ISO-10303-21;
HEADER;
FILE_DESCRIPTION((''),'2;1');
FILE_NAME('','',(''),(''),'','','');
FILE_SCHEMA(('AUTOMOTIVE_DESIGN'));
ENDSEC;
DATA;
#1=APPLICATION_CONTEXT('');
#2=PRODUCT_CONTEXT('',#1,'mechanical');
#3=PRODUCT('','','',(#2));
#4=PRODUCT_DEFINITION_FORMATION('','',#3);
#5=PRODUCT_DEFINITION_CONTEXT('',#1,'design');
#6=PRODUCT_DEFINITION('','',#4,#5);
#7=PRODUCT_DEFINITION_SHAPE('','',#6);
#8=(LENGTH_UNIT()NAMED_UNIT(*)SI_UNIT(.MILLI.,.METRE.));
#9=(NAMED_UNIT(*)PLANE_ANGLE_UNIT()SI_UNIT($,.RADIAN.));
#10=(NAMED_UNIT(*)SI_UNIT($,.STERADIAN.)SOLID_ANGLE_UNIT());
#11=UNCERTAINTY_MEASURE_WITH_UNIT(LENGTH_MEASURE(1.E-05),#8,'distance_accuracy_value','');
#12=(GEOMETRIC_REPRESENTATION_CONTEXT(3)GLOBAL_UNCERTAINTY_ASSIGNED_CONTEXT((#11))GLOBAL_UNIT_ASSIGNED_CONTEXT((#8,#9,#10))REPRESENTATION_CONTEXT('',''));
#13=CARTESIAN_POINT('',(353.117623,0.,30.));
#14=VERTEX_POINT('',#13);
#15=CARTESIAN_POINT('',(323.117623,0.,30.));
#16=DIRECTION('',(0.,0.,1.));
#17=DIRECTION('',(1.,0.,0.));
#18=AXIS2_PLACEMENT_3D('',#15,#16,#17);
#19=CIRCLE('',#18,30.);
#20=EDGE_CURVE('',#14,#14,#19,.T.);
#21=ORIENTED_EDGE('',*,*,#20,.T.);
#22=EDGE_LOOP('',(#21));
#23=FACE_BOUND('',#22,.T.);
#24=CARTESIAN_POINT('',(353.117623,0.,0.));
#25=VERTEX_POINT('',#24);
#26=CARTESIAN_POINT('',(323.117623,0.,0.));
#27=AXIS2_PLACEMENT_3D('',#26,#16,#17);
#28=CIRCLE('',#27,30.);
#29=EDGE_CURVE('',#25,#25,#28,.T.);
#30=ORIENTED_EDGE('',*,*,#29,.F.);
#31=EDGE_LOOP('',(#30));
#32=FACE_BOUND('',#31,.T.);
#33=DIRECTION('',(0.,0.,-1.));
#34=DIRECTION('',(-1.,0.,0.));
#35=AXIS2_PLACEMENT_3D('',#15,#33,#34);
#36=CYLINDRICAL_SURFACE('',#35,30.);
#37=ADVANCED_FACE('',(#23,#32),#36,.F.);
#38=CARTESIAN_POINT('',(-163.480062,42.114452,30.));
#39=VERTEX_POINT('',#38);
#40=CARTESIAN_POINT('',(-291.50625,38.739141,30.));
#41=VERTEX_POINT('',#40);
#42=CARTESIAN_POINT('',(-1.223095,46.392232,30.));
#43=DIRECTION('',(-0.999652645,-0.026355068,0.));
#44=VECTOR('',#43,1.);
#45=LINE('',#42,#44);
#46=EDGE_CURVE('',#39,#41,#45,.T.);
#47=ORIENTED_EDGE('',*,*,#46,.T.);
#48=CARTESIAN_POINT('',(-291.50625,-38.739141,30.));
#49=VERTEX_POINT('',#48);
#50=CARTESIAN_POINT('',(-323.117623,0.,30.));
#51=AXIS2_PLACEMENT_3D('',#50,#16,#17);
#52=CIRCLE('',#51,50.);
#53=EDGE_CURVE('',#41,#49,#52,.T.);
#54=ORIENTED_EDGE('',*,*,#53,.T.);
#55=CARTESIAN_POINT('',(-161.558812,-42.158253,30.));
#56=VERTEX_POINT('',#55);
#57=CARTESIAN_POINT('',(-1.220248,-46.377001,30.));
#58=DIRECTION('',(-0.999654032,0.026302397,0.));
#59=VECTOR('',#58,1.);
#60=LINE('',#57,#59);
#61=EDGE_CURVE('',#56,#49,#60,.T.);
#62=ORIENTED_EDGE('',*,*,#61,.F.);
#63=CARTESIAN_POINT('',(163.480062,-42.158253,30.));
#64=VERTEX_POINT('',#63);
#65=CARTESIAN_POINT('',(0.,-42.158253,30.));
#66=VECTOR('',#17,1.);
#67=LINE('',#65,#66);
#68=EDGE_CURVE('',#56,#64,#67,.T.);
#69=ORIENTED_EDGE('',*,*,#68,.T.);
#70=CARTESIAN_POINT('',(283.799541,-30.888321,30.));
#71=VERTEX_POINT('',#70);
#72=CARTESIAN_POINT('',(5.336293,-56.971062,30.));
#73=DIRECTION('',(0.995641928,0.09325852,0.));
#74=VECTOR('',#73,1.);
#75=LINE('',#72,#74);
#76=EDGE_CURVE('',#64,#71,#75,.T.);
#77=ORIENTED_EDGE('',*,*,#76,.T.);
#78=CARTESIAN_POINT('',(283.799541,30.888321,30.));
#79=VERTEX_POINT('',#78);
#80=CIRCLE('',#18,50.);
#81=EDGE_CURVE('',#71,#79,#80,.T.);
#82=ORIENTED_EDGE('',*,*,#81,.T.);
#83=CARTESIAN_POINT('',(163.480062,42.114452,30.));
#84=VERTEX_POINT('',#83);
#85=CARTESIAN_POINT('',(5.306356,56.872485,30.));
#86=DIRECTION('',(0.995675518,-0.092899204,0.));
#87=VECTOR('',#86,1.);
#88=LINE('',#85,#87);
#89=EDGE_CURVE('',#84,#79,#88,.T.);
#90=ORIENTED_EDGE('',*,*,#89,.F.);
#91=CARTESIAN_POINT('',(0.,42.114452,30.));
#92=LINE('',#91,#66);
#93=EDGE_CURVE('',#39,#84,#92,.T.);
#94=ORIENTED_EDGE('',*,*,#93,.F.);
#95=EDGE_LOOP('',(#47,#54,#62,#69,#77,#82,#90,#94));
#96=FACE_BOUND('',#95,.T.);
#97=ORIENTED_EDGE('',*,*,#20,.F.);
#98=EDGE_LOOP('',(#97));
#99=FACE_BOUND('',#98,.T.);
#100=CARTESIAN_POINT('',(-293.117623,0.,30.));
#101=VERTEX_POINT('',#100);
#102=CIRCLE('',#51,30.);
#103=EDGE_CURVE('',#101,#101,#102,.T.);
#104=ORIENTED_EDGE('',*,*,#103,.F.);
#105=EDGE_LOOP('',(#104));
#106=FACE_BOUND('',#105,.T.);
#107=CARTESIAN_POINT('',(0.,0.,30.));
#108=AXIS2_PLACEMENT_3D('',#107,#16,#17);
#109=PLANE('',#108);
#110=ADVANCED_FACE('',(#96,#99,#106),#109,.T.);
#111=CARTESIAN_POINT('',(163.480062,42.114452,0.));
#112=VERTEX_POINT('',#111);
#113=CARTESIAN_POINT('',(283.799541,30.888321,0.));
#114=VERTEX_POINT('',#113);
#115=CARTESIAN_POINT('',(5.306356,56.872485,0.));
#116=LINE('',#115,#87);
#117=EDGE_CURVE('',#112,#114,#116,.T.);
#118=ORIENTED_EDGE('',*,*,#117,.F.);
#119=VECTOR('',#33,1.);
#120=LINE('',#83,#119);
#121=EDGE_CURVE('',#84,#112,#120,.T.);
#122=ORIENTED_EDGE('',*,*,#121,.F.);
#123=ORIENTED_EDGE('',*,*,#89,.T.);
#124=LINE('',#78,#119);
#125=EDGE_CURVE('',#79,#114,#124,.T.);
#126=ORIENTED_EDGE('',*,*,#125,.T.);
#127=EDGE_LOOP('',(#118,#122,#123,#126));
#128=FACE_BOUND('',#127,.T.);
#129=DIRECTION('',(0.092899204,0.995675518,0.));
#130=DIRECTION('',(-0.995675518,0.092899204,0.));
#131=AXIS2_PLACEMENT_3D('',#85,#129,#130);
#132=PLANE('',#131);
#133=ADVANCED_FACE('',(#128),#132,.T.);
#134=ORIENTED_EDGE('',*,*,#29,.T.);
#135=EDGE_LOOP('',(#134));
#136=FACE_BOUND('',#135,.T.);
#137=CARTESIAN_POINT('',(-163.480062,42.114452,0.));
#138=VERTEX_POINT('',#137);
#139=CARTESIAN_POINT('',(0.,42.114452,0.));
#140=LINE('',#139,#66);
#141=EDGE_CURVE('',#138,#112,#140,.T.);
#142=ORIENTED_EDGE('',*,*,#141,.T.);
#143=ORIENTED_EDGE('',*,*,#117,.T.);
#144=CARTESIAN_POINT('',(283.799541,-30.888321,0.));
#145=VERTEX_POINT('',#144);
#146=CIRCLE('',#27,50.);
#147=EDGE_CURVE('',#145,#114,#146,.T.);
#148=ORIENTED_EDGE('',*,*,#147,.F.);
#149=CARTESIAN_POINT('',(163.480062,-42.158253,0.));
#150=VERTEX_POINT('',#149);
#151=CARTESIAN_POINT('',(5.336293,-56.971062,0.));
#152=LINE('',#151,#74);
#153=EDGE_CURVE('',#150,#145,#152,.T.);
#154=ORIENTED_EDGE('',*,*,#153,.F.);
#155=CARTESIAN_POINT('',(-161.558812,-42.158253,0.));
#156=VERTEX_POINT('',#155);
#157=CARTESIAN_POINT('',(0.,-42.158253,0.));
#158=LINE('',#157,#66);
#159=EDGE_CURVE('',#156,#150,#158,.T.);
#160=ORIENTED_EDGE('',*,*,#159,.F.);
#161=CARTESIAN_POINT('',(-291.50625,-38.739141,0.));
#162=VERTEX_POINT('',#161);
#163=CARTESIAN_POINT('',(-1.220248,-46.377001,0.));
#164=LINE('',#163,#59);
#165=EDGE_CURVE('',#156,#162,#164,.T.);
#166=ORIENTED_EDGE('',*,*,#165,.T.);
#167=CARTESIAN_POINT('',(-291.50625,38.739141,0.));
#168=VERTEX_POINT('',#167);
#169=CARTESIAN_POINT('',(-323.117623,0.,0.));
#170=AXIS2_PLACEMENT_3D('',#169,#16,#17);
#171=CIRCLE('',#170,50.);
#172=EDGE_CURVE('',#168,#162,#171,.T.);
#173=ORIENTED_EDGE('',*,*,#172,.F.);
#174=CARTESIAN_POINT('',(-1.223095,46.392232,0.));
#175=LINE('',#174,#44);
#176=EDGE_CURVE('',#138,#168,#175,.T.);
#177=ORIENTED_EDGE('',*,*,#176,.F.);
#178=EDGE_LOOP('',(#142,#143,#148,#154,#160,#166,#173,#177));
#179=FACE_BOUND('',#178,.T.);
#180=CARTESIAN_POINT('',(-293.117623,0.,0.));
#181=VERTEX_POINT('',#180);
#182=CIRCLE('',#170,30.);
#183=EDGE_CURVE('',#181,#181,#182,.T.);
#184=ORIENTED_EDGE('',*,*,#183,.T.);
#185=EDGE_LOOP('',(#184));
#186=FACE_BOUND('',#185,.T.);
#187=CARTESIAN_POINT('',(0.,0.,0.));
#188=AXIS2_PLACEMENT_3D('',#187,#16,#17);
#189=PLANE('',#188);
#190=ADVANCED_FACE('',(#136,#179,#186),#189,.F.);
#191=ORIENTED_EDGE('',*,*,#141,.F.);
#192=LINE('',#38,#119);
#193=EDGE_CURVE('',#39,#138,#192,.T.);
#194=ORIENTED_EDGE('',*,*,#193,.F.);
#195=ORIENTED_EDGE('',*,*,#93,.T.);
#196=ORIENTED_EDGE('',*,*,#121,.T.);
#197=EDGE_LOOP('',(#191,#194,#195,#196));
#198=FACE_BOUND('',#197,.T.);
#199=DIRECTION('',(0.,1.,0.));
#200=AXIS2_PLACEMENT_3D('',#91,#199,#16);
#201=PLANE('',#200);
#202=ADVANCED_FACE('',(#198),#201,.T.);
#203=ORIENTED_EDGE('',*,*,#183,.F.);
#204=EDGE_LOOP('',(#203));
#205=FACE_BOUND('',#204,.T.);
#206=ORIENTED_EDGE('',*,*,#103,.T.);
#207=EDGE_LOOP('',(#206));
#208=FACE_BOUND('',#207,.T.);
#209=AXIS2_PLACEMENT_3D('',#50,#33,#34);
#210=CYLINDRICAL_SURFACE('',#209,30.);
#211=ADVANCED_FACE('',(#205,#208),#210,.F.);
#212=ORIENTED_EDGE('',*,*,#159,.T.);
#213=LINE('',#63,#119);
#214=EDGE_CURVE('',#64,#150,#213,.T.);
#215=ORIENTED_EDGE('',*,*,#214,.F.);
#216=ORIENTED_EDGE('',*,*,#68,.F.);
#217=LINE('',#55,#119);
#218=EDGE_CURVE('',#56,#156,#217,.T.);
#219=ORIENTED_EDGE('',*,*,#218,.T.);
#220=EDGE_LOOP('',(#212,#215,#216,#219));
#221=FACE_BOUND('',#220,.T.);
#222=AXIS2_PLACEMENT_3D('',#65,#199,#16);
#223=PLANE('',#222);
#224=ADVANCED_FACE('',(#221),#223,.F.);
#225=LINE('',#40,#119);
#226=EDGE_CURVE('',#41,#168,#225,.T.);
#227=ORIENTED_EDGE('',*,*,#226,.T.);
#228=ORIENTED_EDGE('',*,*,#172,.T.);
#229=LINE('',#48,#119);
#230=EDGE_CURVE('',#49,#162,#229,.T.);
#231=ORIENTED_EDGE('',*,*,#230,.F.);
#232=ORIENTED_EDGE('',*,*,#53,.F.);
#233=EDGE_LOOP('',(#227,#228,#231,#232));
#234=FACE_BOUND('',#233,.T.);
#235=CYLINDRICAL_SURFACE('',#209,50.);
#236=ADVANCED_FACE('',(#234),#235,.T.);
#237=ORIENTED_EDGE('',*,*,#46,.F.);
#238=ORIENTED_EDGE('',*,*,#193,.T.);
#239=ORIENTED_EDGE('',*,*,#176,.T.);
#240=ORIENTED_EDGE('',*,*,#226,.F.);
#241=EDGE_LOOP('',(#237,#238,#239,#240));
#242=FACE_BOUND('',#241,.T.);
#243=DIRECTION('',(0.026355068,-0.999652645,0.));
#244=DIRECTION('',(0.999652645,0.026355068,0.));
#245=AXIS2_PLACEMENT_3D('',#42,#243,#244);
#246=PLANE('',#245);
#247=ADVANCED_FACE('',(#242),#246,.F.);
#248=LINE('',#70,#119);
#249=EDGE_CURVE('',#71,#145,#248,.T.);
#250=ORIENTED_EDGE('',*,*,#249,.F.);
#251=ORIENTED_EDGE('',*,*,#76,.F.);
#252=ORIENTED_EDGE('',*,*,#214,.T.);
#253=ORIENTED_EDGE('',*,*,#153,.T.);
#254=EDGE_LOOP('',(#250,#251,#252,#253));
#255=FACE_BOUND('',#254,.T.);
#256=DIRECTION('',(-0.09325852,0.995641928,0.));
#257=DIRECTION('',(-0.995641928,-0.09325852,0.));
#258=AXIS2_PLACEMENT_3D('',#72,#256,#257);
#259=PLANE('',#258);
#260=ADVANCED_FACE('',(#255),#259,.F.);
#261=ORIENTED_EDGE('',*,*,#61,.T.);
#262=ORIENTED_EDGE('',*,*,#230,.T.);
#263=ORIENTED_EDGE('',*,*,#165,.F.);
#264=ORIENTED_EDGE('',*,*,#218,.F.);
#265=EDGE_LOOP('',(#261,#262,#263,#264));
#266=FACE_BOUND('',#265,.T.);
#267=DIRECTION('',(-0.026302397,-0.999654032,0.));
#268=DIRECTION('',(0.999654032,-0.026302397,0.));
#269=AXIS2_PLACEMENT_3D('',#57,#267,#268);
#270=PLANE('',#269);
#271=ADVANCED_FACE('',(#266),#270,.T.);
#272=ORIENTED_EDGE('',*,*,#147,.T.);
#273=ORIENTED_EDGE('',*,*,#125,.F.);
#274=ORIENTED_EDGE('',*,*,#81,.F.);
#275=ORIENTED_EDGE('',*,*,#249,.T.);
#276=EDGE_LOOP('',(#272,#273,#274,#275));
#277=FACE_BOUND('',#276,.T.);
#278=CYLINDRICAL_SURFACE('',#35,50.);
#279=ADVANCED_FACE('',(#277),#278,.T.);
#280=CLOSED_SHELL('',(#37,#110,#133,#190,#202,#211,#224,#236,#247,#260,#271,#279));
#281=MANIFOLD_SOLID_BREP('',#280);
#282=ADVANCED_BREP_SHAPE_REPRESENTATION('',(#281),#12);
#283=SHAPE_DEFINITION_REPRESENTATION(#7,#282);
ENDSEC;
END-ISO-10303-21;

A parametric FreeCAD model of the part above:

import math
import FreeCAD as App
import Part
import Sketcher
Q = App.Units.Quantity

doc = App.newDocument("Part")
params = doc.addObject("Spreadsheet::Sheet", "Params")
for row, (alias, value) in enumerate([
    ("sketch1_diameter", "60 mm"),
    ("sketch1_radius", "50 mm"),
    ("pad1_length", "30 mm"),
], start=1):
    params.set(f"A{row}", alias)
    params.set(f"B{row}", "=" + value)
    params.setAlias(f"B{row}", alias)

body = doc.addObject("PartDesign::Body", "Body")

# Sketch on XY plane
sketch1 = doc.addObject("Sketcher::SketchObject", "Sketch")
body.addObject(sketch1)
sketch1.AttachmentSupport = (doc.XY_Plane, [""])
sketch1.MapMode = "FlatFace"
sketch1.addGeometry(Part.LineSegment(App.Vector(-163, 42, 0), App.Vector(-292, 39, 0)), False)
sketch1.addGeometry(Part.ArcOfCircle(Part.Circle(App.Vector(-323, 0, 0), App.Vector(0, 0, 1), 50), math.radians(51), math.radians(309)), False)
sketch1.addGeometry(Part.LineSegment(App.Vector(-292, -39, 0), App.Vector(-162, -42, 0)), False)
sketch1.addGeometry(Part.LineSegment(App.Vector(-162, -42, 0), App.Vector(163, -42, 0)), False)
sketch1.addGeometry(Part.LineSegment(App.Vector(163, -42, 0), App.Vector(284, -31, 0)), False)
sketch1.addGeometry(Part.ArcOfCircle(Part.Circle(App.Vector(323, 0, 0), App.Vector(0, 0, 1), 50), math.radians(-142), math.radians(142)), False)
sketch1.addGeometry(Part.LineSegment(App.Vector(284, 31, 0), App.Vector(163, 42, 0)), False)
sketch1.addGeometry(Part.LineSegment(App.Vector(163, 42, 0), App.Vector(-163, 42, 0)), False)
sketch1.addGeometry(Part.Circle(App.Vector(-323, 0, 0), App.Vector(0, 0, 1), 30), False)
sketch1.addGeometry(Part.Circle(App.Vector(323, 0, 0), App.Vector(0, 0, 1), 30), False)
sketch1.addConstraint(Sketcher.Constraint("Coincident", 0, 2, 1, 1))
sketch1.addConstraint(Sketcher.Constraint("Coincident", 1, 2, 2, 1))
sketch1.addConstraint(Sketcher.Constraint("Coincident", 2, 2, 3, 1))
sketch1.addConstraint(Sketcher.Constraint("Coincident", 3, 2, 4, 1))
sketch1.addConstraint(Sketcher.Constraint("Coincident", 4, 2, 5, 1))
sketch1.addConstraint(Sketcher.Constraint("Coincident", 5, 2, 6, 1))
sketch1.addConstraint(Sketcher.Constraint("Coincident", 6, 2, 7, 1))
sketch1.addConstraint(Sketcher.Constraint("Coincident", 7, 2, 0, 1))
sketch1.addConstraint(Sketcher.Constraint("Horizontal", 3))
sketch1.addConstraint(Sketcher.Constraint("Horizontal", 7))
sketch1.addConstraint(Sketcher.Constraint("Coincident", 8, 3, 1, 3))
sketch1.addConstraint(Sketcher.Constraint("Coincident", 9, 3, 5, 3))
sketch1.addConstraint(Sketcher.Constraint("Equal", 1, 5))
sketch1.addConstraint(Sketcher.Constraint("Equal", 8, 9))
sketch1.addConstraint(Sketcher.Constraint("Symmetric", 1, 3, 5, 3, -1, 1))
sketch1.addConstraint(Sketcher.Constraint("Symmetric", 0, 2, 1, 2, -1))
sketch1.addConstraint(Sketcher.Constraint("Vertical", 4, 2, 5, 2))
sketch1.addConstraint(Sketcher.Constraint("Vertical", 3, 2, 6, 2))
sketch1.addConstraint(Sketcher.Constraint("Diameter", 8, Q("60 mm")))
sketch1.addConstraint(Sketcher.Constraint("Radius", 1, Q("50 mm")))
sketch1.addConstraint(Sketcher.Constraint("Distance", 2, Q("129.992411 mm")))
sketch1.addConstraint(Sketcher.Constraint("Distance", 6, Q("120.842059 mm")))
sketch1.addConstraint(Sketcher.Constraint("DistanceX", 3, 1, 3, 2, Q("325.038873 mm")))
sketch1.addConstraint(Sketcher.Constraint("DistanceX", 7, 2, 7, 1, Q("326.960123 mm")))
sketch1.addConstraint(Sketcher.Constraint("DistanceX", 0, 2, -1, 1, Q("291.50625 mm")))
sketch1.addConstraint(Sketcher.Constraint("DistanceY", -1, 1, 0, 2, Q("38.739141 mm")))
sketch1.addConstraint(Sketcher.Constraint("DistanceX", 2, 2, -1, 1, Q("161.558812 mm")))
sketch1.addConstraint(Sketcher.Constraint("DistanceX", -1, 1, 4, 2, Q("283.799541 mm")))
sketch1.setExpression("Constraints[18]", "Params.sketch1_diameter")
sketch1.setExpression("Constraints[19]", "Params.sketch1_radius")
pad1 = doc.addObject("PartDesign::Pad", "Pad")
body.addObject(pad1)
pad1.Profile = sketch1
pad1.setExpression("Length", "Params.pad1_length")

doc.recompute()
